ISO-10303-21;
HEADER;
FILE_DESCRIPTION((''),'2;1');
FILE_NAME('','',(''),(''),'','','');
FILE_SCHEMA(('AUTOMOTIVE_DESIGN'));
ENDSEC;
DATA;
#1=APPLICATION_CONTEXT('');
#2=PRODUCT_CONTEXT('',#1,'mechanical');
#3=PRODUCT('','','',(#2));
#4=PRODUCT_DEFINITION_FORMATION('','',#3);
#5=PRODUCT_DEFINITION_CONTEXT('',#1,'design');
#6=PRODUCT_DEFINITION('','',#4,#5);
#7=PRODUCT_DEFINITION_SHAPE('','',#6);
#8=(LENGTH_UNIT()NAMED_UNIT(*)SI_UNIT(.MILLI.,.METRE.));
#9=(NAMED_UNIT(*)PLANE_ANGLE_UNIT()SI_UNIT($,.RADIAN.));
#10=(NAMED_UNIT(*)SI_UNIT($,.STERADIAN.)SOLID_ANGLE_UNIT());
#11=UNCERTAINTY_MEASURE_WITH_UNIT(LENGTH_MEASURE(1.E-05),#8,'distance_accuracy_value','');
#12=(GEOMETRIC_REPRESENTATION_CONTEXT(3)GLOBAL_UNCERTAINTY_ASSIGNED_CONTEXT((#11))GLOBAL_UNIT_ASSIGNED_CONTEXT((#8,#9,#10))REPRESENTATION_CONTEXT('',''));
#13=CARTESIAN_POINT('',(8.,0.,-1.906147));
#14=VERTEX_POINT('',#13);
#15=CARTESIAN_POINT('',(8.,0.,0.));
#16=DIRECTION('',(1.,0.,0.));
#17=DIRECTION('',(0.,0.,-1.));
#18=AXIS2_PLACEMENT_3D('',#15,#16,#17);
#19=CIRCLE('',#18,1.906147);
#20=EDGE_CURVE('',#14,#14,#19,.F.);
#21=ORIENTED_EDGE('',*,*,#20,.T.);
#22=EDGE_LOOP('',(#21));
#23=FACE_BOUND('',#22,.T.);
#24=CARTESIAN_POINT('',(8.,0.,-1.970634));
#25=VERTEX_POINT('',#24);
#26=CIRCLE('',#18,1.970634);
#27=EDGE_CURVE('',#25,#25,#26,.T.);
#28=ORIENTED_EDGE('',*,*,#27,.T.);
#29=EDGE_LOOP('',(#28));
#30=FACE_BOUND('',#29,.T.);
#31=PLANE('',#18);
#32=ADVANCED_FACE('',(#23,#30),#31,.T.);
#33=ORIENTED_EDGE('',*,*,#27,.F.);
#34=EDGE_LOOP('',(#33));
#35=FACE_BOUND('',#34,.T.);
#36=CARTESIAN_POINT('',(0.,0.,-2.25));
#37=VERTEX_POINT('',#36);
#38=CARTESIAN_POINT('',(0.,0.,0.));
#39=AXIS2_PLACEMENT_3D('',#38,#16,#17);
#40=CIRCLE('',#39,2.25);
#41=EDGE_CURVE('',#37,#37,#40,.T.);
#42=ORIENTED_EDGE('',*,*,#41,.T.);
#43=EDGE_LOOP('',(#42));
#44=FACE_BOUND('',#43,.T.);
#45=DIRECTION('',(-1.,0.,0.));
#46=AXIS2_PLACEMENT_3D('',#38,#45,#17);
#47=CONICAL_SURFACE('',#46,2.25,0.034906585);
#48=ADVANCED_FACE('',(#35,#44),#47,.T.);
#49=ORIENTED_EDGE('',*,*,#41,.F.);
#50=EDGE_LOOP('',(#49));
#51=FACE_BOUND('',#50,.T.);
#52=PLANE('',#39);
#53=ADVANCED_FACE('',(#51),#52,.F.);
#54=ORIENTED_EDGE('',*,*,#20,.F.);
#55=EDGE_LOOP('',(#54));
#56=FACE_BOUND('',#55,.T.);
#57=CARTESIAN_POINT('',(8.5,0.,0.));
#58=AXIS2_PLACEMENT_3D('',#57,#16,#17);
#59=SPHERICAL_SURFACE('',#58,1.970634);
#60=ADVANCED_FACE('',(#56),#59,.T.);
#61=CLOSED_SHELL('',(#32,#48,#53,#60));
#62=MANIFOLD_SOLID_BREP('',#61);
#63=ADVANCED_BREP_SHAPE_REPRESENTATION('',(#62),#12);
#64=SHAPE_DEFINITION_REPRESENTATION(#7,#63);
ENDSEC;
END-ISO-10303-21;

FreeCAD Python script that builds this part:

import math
import FreeCAD as App
import Part
import Sketcher

doc = App.newDocument("Part")
params = doc.addObject("Spreadsheet::Sheet", "Params")
for row, (alias, value) in enumerate([
    ("sketch1_diameter", "4.5 mm"),
    ("pad1_length", "8 mm"),
    ("pad1_taper", "-2 deg"),
    ("revolution_angle", "360 deg"),
], start=1):
    params.set(f"A{row}", alias)
    params.set(f"B{row}", "=" + value)
    params.setAlias(f"B{row}", alias)

body = doc.addObject("PartDesign::Body", "Body")

sketch1 = body.newObject("Sketcher::SketchObject", "Sketch")
sketch1.AttachmentSupport = (doc.getObject("YZ_Plane"), [""])
sketch1.MapMode = "FlatFace"
sketch1.addGeometry(Part.Circle(App.Vector(0, 0, 0), App.Vector(0, 0, 1), 2.25), False)
sketch1.addConstraint([
    Sketcher.Constraint("Coincident", 0, 3, -1, 1),
    Sketcher.Constraint("Diameter", 0, 4.5),
])
sketch1.setExpression("Constraints[1]", "Params.sketch1_diameter")
pad1 = body.newObject("PartDesign::Pad", "Pad")
pad1.Profile = sketch1
pad1.setExpression("Length", "Params.pad1_length")
pad1.setExpression("TaperAngle", "Params.pad1_taper")

sketch2 = body.newObject("Sketcher::SketchObject", "Sketch001")
sketch2.AttachmentSupport = (doc.getObject("YZ_Plane"), [""])
sketch2.MapMode = "FlatFace"
sketch2.AttachmentOffset = App.Placement(App.Vector(0, 0, 8.5), App.Rotation())
sketch2.addGeometry([
    Part.LineSegment(App.Vector(1.970634, 0, 0), App.Vector(-1.970634, 0, 0)),
    Part.ArcOfCircle(Part.Circle(App.Vector(0, 0, 0), App.Vector(0, 0, 1), 1.970634), math.radians(180), math.radians(360)),
], False)
sketch2.addConstraint([
    Sketcher.Constraint("Coincident", 0, 1, 1, 2),
    Sketcher.Constraint("Coincident", 1, 1, 0, 2),
    Sketcher.Constraint("Horizontal", 0),
    Sketcher.Constraint("Coincident", 1, 3, -1, 1),
    Sketcher.Constraint("PointOnObject", 0, 1, -1),
    Sketcher.Constraint("Radius", 1, 1.970634),
])
revolution = body.newObject("PartDesign::Revolution", "Revolution")
revolution.Profile = sketch2
revolution.ReferenceAxis = (sketch2, ["H_Axis"])
revolution.setExpression("Angle", "Params.revolution_angle")

doc.recompute()
